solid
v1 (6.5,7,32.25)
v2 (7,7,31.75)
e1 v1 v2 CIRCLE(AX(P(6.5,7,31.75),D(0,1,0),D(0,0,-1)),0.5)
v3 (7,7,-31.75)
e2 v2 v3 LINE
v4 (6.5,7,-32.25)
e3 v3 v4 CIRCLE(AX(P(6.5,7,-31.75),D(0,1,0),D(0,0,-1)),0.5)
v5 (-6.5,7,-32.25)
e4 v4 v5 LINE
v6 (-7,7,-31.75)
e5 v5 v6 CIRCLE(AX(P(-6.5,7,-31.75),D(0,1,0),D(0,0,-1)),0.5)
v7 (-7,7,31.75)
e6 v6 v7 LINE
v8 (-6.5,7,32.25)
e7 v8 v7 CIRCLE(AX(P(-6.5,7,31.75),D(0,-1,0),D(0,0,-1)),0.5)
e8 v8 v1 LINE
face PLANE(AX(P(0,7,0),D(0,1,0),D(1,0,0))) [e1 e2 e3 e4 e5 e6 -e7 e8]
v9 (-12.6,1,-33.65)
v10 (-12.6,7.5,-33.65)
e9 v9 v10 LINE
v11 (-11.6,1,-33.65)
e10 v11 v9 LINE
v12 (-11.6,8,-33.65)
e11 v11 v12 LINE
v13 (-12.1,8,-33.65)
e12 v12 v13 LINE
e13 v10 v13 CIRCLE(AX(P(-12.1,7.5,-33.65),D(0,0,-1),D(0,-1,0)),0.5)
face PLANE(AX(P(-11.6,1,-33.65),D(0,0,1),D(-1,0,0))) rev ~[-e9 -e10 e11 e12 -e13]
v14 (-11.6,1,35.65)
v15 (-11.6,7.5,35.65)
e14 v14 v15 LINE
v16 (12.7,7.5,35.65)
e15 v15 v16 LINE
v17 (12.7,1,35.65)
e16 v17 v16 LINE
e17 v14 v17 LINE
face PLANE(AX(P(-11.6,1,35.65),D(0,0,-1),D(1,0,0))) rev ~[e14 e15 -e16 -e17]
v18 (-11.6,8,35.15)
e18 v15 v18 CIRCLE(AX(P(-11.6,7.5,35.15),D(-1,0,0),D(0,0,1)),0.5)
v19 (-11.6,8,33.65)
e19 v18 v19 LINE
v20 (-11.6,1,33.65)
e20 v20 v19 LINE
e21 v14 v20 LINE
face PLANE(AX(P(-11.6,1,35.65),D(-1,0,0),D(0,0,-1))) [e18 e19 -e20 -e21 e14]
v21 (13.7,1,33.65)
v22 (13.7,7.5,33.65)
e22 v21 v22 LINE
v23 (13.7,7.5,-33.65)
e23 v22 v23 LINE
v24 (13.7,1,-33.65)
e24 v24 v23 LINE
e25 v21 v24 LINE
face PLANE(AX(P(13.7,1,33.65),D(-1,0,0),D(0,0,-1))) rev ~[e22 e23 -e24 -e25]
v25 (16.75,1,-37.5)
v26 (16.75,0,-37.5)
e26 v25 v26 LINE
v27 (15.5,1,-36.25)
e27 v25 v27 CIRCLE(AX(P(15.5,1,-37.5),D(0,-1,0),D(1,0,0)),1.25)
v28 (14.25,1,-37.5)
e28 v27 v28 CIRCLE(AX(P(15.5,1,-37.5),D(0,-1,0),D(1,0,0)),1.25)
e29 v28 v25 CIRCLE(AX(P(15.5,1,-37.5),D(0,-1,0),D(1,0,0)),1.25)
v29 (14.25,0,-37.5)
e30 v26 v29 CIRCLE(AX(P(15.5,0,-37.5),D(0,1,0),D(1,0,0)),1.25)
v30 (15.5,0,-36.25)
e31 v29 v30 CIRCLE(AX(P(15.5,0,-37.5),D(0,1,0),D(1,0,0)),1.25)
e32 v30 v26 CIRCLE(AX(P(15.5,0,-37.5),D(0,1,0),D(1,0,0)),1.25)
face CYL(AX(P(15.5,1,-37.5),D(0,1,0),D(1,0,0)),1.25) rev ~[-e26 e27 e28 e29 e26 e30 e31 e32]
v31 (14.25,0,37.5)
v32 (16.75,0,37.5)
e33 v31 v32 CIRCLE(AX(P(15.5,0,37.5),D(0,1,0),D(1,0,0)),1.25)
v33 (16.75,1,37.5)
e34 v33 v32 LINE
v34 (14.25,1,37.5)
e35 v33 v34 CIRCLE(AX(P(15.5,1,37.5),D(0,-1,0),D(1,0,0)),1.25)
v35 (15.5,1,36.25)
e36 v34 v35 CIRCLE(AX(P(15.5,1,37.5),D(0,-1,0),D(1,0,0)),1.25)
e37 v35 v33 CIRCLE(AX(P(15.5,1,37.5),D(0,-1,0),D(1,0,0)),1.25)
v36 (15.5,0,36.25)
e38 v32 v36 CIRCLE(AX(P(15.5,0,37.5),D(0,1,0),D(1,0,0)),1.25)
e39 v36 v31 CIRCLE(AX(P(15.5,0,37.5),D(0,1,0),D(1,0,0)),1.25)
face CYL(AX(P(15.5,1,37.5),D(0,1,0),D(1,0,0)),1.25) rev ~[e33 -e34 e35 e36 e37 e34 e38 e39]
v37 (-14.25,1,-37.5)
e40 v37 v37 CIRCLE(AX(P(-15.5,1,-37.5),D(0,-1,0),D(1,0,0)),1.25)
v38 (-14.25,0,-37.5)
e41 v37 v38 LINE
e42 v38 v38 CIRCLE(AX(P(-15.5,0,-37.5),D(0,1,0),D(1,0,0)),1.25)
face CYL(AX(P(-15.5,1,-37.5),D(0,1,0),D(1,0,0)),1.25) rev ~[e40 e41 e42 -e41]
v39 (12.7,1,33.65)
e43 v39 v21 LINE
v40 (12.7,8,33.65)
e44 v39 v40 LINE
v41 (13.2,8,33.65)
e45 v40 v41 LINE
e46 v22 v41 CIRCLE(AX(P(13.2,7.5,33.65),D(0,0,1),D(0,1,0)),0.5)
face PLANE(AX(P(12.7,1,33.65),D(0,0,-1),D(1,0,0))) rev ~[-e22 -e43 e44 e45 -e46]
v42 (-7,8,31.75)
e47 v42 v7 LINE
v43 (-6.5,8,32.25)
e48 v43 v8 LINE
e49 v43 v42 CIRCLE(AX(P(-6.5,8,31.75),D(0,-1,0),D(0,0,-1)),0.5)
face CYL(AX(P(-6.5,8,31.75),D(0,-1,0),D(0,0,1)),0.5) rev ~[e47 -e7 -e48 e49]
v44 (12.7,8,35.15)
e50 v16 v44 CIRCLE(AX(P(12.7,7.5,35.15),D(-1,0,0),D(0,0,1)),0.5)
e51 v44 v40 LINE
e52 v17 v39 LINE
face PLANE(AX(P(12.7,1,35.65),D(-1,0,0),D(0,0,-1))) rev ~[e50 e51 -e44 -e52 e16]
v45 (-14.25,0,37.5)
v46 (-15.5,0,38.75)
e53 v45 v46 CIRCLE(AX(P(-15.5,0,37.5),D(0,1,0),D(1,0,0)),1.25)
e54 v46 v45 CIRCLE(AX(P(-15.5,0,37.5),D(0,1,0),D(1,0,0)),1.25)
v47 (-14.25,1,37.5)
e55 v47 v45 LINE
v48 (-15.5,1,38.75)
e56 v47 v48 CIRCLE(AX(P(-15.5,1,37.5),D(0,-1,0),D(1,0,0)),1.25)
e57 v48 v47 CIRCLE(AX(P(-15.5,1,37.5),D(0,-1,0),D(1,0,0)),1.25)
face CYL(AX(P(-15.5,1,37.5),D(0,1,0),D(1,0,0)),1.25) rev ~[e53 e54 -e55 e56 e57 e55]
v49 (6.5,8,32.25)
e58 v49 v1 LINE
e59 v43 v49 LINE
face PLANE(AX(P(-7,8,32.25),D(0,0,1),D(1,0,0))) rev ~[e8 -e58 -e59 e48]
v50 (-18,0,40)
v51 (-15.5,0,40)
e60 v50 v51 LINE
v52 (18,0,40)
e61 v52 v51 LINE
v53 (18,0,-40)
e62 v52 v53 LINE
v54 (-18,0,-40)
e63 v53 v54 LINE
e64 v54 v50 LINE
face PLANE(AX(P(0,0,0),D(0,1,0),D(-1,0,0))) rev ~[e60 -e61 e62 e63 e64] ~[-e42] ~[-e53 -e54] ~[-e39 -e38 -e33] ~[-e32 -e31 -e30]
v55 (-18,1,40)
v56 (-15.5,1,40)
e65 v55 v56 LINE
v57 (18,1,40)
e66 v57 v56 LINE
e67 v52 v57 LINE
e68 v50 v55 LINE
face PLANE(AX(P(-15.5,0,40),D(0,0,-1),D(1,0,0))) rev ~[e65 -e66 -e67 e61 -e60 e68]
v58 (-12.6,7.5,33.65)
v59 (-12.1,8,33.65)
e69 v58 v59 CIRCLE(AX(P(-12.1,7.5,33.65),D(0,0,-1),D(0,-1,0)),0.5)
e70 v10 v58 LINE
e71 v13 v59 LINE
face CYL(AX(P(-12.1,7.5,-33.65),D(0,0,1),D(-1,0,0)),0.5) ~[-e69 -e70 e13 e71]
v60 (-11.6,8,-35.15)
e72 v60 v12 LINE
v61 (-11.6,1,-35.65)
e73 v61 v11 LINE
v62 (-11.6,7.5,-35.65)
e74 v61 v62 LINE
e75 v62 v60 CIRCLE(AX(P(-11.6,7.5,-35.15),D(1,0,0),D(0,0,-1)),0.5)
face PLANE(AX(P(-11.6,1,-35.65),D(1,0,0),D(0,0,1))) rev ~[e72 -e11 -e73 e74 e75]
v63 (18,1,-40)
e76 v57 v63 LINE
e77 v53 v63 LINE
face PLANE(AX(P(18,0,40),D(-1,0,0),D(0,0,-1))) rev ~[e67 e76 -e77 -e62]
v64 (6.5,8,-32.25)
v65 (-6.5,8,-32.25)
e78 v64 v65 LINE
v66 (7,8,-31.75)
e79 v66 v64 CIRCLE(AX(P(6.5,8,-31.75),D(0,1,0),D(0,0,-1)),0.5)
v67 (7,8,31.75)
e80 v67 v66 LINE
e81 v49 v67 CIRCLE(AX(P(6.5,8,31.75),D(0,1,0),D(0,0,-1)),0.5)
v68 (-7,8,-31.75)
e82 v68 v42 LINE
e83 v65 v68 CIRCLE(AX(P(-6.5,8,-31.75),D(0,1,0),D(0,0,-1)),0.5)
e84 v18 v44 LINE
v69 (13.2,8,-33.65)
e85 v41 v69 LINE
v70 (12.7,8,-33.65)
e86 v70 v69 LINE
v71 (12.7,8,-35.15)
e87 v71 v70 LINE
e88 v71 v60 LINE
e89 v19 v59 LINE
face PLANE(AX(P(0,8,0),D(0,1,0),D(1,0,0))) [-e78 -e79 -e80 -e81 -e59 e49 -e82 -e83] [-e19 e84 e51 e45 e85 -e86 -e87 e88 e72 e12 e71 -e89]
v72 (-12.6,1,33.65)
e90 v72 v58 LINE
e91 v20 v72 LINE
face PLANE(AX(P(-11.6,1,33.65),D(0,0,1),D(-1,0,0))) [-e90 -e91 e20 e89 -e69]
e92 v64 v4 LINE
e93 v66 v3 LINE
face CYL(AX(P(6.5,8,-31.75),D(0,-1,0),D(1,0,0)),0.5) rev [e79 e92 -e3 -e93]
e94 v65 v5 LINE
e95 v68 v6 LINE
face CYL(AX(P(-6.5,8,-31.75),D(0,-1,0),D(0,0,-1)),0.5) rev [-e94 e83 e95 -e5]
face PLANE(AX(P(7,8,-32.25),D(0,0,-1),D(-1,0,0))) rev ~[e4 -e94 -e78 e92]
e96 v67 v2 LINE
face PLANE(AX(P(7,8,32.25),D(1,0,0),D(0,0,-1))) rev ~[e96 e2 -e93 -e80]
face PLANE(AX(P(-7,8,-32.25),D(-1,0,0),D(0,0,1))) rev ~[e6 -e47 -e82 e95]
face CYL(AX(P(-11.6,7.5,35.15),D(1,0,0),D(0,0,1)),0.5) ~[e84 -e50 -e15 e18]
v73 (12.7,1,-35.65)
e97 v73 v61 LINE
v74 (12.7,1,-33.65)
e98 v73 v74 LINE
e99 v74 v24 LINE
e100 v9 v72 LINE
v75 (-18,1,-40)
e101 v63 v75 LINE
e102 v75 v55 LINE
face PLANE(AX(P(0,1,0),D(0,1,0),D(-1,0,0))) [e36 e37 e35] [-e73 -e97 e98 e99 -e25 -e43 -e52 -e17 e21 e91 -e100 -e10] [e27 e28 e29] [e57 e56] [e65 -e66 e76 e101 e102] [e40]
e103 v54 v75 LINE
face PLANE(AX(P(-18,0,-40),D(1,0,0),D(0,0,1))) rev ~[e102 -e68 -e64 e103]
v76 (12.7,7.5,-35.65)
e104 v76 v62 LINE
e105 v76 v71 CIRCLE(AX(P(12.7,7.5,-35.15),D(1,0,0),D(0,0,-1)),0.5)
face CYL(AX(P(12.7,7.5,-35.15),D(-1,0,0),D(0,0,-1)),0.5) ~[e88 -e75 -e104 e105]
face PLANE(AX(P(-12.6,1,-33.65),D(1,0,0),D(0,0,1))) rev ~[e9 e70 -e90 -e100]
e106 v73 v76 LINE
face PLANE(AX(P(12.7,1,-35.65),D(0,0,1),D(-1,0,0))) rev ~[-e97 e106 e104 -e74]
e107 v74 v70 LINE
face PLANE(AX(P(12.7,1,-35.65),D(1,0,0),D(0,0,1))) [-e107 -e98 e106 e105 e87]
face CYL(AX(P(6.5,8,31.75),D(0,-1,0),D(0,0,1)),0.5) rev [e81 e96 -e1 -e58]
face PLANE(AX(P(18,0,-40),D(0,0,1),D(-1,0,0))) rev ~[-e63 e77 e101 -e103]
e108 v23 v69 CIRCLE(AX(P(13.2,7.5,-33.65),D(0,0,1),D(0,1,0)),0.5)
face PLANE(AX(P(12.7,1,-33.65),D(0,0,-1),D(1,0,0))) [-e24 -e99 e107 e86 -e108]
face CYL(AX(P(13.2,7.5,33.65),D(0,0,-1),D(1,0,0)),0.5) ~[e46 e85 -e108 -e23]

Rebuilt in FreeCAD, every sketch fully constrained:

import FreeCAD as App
import Part
import Sketcher

V = App.Vector


def edges_at(feature, points):
    """Names of the edges that pass closest to the given points."""
    edges = feature.Shape.Edges
    near = lambda p: min(range(len(edges)), key=lambda i: edges[i].distToShape(Part.Vertex(*p))[0])
    return sorted({f"Edge{near(p) + 1}" for p in points})


def add_polygon(sketch, points):
    """Adds a closed chain of lines whose ends are joined by coincident constraints."""
    first, n = sketch.GeometryCount, len(points)
    for a, b in zip(points, points[1:] + points[:1]):
        sketch.addGeometry(Part.LineSegment(App.Vector(*a, 0), App.Vector(*b, 0)), False)
    for i in range(n):
        sketch.addConstraint(Sketcher.Constraint("Coincident", first + i, 2, first + (i + 1) % n, 1))

doc = App.newDocument("Part")
body = doc.addObject("PartDesign::Body", "Body")

# Sketch on XZ plane
sketch1 = body.newObject("Sketcher::SketchObject", "Sketch")
sketch1.AttachmentSupport = (doc.getObject("XZ_Plane"), [""])
sketch1.MapMode = "FlatFace"
add_polygon(sketch1, [(18, 40), (18, -40), (-18, -40), (-18, 40), (-15.5, 40)])  # lines 0-4
sketch1.addConstraint([
    Sketcher.Constraint("Vertical", 0),
    Sketcher.Constraint("Horizontal", 1),
    Sketcher.Constraint("Vertical", 2),
    Sketcher.Constraint("Horizontal", 3),
    Sketcher.Constraint("Horizontal", 4),
    Sketcher.Constraint("Symmetric", 0, 2, 2, 2, -1, 1),
    Sketcher.Constraint("DistanceX", 1, 2, 1, 1, 36.0),
    Sketcher.Constraint("DistanceY", 0, 2, 0, 1, 80.0),
    Sketcher.Constraint("DistanceX", 3, 1, 3, 2, 2.5),
])
pad1 = body.newObject("PartDesign::Pad", "Pad")
pad1.Profile = sketch1
pad1.Length = 1
pad1.Reversed = True

# Sketch on XZ plane
sketch2 = body.newObject("Sketcher::SketchObject", "Sketch001")
sketch2.AttachmentSupport = (doc.getObject("XZ_Plane"), [""])
sketch2.MapMode = "FlatFace"
sketch2.AttachmentOffset = App.Placement(V(0, 0, -1), App.Rotation())
add_polygon(sketch2, [(-11.6, 33.6), (-11.6, 35.6), (12.7, 35.6), (12.7, 33.6), (13.7, 33.6), (13.7, -33.6), (12.7, -33.6), (12.7, -35.6), (-11.6, -35.6), (-11.6, -33.6), (-12.6, -33.6), (-12.6, 33.6)])  # lines 0-11
sketch2.addConstraint([
    Sketcher.Constraint("Vertical", 0),
    Sketcher.Constraint("Horizontal", 1),
    Sketcher.Constraint("Vertical", 2),
    Sketcher.Constraint("Horizontal", 3),
    Sketcher.Constraint("Vertical", 4),
    Sketcher.Constraint("Horizontal", 5),
    Sketcher.Constraint("Vertical", 6),
    Sketcher.Constraint("Horizontal", 7),
    Sketcher.Constraint("Vertical", 8),
    Sketcher.Constraint("Horizontal", 9),
    Sketcher.Constraint("Vertical", 10),
    Sketcher.Constraint("Horizontal", 11),
    Sketcher.Constraint("Symmetric", 2, 2, 5, 2, -1),
    Sketcher.Constraint("Symmetric", 0, 2, 7, 2, -1),
    Sketcher.Constraint("Horizontal", 5, 2, 8, 2),
    Sketcher.Constraint("Horizontal", 3, 2, 10, 2),
    Sketcher.Constraint("Equal", 5, 9),
    Sketcher.Constraint("DistanceY", 0, 1, 0, 2, 2.0),
    Sketcher.Constraint("DistanceX", 3, 1, 3, 2, 1.0),
    Sketcher.Constraint("DistanceX", 1, 1, 1, 2, 24.3),
    Sketcher.Constraint("DistanceY", 4, 2, 4, 1, 67.3),
    Sketcher.Constraint("DistanceX", 0, 2, -1, 1, 11.6),
])
pad2 = body.newObject("PartDesign::Pad", "Pad001")
pad2.Profile = sketch2
pad2.Length = 7
pad2.Reversed = True
doc.recompute()

fillet = body.newObject("PartDesign::Fillet", "Fillet")
fillet.Base = (pad2, edges_at(pad2, [
    (-12.6, 8, 0),
    (0.55, 8, -35.65),
    (13.7, 8, 0),
    (0.55, 8, 35.65),
]))
fillet.Radius = 0.5

# Sketch on XZ plane
sketch3 = body.newObject("Sketcher::SketchObject", "Sketch002")
sketch3.AttachmentSupport = (doc.getObject("XZ_Plane"), [""])
sketch3.MapMode = "FlatFace"
sketch3.AttachmentOffset = App.Placement(V(0, 0, -8), App.Rotation())
add_polygon(sketch3, [(-7, 32), (7, 32), (7, -32), (-7, -32)])  # lines 0-3
sketch3.addConstraint([
    Sketcher.Constraint("Horizontal", 0),
    Sketcher.Constraint("Vertical", 1),
    Sketcher.Constraint("Horizontal", 2),
    Sketcher.Constraint("Vertical", 3),
    Sketcher.Constraint("Symmetric", 0, 2, 2, 2, -1, 1),
    Sketcher.Constraint("DistanceX", 0, 1, 0, 2, 14.0),
    Sketcher.Constraint("DistanceY", 1, 2, 1, 1, 64.5),
])
pocket1 = body.newObject("PartDesign::Pocket", "Pocket")
pocket1.Profile = sketch3
pocket1.Length = 1
pocket1.Reversed = True
doc.recompute()

fillet2 = body.newObject("PartDesign::Fillet", "Fillet001")
fillet2.Base = (pocket1, edges_at(pocket1, [
    (7, 7.5, -32.25),
    (7, 7.5, 32.25),
    (-7, 7.5, 32.25),
    (-7, 7.5, -32.25),
]))
fillet2.Radius = 0.5

# Sketch on XZ plane
sketch4 = body.newObject("Sketcher::SketchObject", "Sketch003")
sketch4.AttachmentSupport = (doc.getObject("XZ_Plane"), [""])
sketch4.MapMode = "FlatFace"
sketch4.AttachmentOffset = App.Placement(V(0, 0, -1), App.Rotation())
sketch4.addGeometry([
    Part.Circle(V(15.5, 37.5, 0), V(0, 0, 1), 1.2),
    Part.Circle(V(-15.5, 37.5, 0), V(0, 0, 1), 1.2),
    Part.Circle(V(-15.5, -37.5, 0), V(0, 0, 1), 1.2),
    Part.Circle(V(15.5, -37.5, 0), V(0, 0, 1), 1.2),
], False)
sketch4.addConstraint([
    Sketcher.Constraint("Equal", 0, 1),
    Sketcher.Constraint("Equal", 1, 2),
    Sketcher.Constraint("Equal", 2, 3),
    Sketcher.Constraint("Symmetric", 0, 3, 2, 3, -1, 1),
    Sketcher.Constraint("Symmetric", 1, 3, 3, 3, -1, 1),
    Sketcher.Constraint("Symmetric", 0, 3, 1, 3, -2),
    Sketcher.Constraint("Diameter", 0, 2.5),
    Sketcher.Constraint("DistanceX", 1, 3, 0, 3, 31.0),
    Sketcher.Constraint("DistanceY", 2, 3, 1, 3, 75.0),
])
pocket2 = body.newObject("PartDesign::Pocket", "Pocket001")
pocket2.Profile = sketch4
pocket2.Length = 1
pocket2.Reversed = True

doc.recompute()
